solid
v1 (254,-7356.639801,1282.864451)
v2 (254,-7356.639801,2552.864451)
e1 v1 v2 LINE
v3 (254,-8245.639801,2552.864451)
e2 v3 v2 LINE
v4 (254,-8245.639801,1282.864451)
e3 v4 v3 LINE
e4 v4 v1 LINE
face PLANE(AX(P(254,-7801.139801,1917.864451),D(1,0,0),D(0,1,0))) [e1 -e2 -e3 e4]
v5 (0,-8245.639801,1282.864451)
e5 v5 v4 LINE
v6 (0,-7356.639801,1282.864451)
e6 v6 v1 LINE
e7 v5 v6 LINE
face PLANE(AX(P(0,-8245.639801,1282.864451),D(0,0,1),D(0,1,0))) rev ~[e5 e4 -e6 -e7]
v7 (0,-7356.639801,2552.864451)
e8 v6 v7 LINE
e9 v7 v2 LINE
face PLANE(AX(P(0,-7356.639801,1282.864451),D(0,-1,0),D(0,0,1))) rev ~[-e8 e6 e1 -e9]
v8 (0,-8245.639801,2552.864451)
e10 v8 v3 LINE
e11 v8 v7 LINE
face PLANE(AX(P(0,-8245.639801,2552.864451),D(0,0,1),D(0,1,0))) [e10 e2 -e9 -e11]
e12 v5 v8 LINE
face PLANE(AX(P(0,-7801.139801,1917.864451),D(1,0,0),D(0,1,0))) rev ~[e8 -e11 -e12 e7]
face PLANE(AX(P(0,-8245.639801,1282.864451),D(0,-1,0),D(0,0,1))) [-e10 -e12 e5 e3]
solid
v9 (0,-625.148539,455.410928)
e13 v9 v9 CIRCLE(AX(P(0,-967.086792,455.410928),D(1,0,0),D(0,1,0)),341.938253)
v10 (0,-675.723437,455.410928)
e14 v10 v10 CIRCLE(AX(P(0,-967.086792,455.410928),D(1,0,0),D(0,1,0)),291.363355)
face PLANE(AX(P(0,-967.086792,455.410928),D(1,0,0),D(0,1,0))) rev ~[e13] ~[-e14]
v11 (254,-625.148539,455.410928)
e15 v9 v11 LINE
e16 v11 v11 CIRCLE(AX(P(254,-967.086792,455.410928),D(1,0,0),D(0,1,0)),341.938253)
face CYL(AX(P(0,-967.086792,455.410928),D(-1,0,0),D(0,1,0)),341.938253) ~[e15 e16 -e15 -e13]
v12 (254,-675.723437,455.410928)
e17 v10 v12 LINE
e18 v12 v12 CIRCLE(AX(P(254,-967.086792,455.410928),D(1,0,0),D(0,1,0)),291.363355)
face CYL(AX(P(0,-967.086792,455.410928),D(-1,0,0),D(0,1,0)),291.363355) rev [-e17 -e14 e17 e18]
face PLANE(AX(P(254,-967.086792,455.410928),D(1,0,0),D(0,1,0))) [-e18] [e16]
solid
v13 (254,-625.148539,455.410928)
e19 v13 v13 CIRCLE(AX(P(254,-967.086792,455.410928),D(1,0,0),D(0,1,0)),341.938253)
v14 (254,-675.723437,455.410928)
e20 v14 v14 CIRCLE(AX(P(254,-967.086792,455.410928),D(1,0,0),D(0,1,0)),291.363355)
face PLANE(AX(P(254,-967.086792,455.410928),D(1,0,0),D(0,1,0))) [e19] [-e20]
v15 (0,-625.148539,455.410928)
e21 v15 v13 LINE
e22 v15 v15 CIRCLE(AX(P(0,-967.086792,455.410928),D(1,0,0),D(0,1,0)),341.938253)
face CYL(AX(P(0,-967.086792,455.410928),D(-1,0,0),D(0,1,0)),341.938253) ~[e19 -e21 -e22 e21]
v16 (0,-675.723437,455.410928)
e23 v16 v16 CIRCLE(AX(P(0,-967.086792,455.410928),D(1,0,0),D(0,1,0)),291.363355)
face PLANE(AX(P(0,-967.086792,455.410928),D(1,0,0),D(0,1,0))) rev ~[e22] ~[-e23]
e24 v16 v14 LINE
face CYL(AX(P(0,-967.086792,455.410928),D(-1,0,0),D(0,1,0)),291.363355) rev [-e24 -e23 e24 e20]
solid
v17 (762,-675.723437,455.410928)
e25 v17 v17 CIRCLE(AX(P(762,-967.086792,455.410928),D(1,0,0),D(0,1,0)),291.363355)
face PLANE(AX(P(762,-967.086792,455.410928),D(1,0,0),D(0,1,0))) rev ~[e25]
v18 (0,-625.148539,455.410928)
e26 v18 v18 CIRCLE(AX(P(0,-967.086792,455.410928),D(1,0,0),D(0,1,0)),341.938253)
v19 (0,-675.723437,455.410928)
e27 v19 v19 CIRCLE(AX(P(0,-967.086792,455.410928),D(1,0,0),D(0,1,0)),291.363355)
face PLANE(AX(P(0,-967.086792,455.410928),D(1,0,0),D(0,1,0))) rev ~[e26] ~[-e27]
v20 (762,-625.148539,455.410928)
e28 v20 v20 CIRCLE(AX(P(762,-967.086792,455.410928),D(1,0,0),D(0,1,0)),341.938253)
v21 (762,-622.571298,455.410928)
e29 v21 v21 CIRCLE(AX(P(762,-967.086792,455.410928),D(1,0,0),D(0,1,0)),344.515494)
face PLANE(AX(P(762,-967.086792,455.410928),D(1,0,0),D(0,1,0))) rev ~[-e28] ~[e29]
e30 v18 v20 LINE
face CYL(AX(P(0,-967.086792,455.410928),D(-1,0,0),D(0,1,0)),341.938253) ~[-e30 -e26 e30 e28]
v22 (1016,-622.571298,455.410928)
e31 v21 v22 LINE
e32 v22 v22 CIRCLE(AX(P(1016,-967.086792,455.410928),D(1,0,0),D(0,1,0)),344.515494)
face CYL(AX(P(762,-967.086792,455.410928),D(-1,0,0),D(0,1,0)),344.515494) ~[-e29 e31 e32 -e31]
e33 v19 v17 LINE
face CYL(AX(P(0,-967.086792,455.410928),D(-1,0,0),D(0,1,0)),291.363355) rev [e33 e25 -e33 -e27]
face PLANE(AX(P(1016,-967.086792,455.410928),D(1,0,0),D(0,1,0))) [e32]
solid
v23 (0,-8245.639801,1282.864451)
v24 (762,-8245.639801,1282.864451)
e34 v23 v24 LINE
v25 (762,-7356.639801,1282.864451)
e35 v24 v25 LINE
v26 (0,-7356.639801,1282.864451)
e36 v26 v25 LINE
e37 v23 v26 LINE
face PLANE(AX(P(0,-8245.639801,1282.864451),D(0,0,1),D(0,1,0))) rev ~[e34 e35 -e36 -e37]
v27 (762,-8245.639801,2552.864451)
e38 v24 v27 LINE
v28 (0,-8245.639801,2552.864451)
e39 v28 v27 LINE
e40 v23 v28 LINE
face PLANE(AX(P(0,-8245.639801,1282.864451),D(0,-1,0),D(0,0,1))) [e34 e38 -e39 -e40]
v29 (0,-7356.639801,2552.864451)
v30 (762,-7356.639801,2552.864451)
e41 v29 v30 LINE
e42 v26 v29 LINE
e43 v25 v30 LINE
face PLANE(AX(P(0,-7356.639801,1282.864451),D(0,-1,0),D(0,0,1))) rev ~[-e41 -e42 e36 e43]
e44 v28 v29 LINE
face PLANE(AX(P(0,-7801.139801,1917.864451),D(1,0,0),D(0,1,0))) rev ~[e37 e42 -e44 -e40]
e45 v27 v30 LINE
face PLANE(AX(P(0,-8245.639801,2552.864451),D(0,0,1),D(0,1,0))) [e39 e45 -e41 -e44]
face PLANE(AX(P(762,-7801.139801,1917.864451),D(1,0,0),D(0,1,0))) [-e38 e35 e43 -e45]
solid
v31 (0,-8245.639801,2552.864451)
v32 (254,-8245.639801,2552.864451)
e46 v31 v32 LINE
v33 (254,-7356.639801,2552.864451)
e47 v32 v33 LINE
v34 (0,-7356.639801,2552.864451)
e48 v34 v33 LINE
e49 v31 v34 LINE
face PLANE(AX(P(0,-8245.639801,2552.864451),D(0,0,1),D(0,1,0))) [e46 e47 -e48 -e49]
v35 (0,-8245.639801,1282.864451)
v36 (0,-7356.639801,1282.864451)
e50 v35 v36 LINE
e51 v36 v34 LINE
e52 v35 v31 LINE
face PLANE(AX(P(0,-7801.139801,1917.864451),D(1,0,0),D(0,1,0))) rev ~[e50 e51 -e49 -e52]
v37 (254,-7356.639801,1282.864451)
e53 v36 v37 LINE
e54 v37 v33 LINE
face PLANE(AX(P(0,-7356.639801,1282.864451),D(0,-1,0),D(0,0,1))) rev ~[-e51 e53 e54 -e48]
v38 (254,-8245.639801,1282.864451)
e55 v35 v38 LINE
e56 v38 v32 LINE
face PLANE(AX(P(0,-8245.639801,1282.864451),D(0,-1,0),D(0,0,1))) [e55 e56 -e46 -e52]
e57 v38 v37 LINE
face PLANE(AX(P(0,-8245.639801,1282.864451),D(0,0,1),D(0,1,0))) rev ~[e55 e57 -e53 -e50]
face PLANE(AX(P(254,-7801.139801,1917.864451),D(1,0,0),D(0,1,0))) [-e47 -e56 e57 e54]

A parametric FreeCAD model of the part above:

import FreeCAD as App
import Part
import Sketcher
Q = App.Units.Quantity

doc = App.newDocument("Part")
params = doc.addObject("Spreadsheet::Sheet", "Params")
for row, (alias, value) in enumerate([
    ("sketch1_width", "35 in"),
    ("sketch1_height", "50 in"),
    ("pad1_length", "10 in"),
    ("sketch2_width", "35 in"),
    ("sketch2_height", "50 in"),
    ("pad2_length", "10 in"),
    ("sketch3_width", "35 in"),
    ("sketch3_height", "50 in"),
    ("pad3_length", "30 in"),
    ("pad4_length", "10 in"),
], start=1):
    params.set(f"A{row}", alias)
    params.set(f"B{row}", "=" + value)
    params.setAlias(f"B{row}", alias)

body = doc.addObject("PartDesign::Body", "Body")
body.AllowCompound = True

# Sketch on YZ plane
sketch1 = doc.addObject("Sketcher::SketchObject", "Sketch")
body.addObject(sketch1)
sketch1.AttachmentSupport = (doc.YZ_Plane, [""])
sketch1.MapMode = "FlatFace"
sketch1.addGeometry([
    Part.LineSegment(App.Vector(-8246, 2553, 0), App.Vector(-8246, 1283, 0)),  # 0
    Part.LineSegment(App.Vector(-8246, 1283, 0), App.Vector(-7357, 1283, 0)),  # 1
    Part.LineSegment(App.Vector(-7357, 1283, 0), App.Vector(-7357, 2553, 0)),  # 2
    Part.LineSegment(App.Vector(-7357, 2553, 0), App.Vector(-8246, 2553, 0)),  # 3
    Part.Circle(App.Vector(-967, 455, 0), App.Vector(0, 0, 1), 342),  # 4
    Part.Circle(App.Vector(-967, 455, 0), App.Vector(0, 0, 1), 291),  # 5
], False)
sketch1.addConstraint([
    Sketcher.Constraint("Coincident", 0, 2, 1, 1),
    Sketcher.Constraint("Coincident", 1, 2, 2, 1),
    Sketcher.Constraint("Coincident", 2, 2, 3, 1),
    Sketcher.Constraint("Coincident", 3, 2, 0, 1),
    Sketcher.Constraint("Vertical", 0),
    Sketcher.Constraint("Horizontal", 1),
    Sketcher.Constraint("Vertical", 2),
    Sketcher.Constraint("Horizontal", 3),
    Sketcher.Constraint("Coincident", 5, 3, 4, 3),
    Sketcher.Constraint("DistanceX", 1, 1, 1, 2, Q("35 in")),
    Sketcher.Constraint("DistanceY", 0, 2, 0, 1, Q("50 in")),
    Sketcher.Constraint("Diameter", 5, Q("582.72671 mm")),
    Sketcher.Constraint("Diameter", 4, Q("683.876506 mm")),
    Sketcher.Constraint("DistanceX", 0, 2, -1, 1, Q("8245.639801 mm")),
    Sketcher.Constraint("DistanceX", 4, 3, -1, 1, Q("967.086792 mm")),
    Sketcher.Constraint("DistanceY", -1, 1, 4, 3, Q("455.410928 mm")),
    Sketcher.Constraint("DistanceY", -1, 1, 0, 2, Q("1282.864451 mm")),
])
sketch1.setExpression("Constraints[9]", "Params.sketch1_width")
sketch1.setExpression("Constraints[10]", "Params.sketch1_height")
pad1 = doc.addObject("PartDesign::Pad", "Pad")
body.addObject(pad1)
pad1.Profile = sketch1
pad1.setExpression("Length", "Params.pad1_length")
body2 = doc.addObject("PartDesign::Body", "Body001")
body2.AllowCompound = True

# Sketch on YZ plane
sketch2 = doc.addObject("Sketcher::SketchObject", "Sketch001")
body2.addObject(sketch2)
sketch2.AttachmentSupport = (doc.getObject("YZ_Plane001"), [""])
sketch2.MapMode = "FlatFace"
sketch2.addGeometry([
    Part.LineSegment(App.Vector(-8246, 2553, 0), App.Vector(-8246, 1283, 0)),  # 0
    Part.LineSegment(App.Vector(-8246, 1283, 0), App.Vector(-7357, 1283, 0)),  # 1
    Part.LineSegment(App.Vector(-7357, 1283, 0), App.Vector(-7357, 2553, 0)),  # 2
    Part.LineSegment(App.Vector(-7357, 2553, 0), App.Vector(-8246, 2553, 0)),  # 3
    Part.Circle(App.Vector(-967, 455, 0), App.Vector(0, 0, 1), 342),  # 4
    Part.Circle(App.Vector(-967, 455, 0), App.Vector(0, 0, 1), 291),  # 5
], False)
sketch2.addConstraint([
    Sketcher.Constraint("Coincident", 0, 2, 1, 1),
    Sketcher.Constraint("Coincident", 1, 2, 2, 1),
    Sketcher.Constraint("Coincident", 2, 2, 3, 1),
    Sketcher.Constraint("Coincident", 3, 2, 0, 1),
    Sketcher.Constraint("Vertical", 0),
    Sketcher.Constraint("Horizontal", 1),
    Sketcher.Constraint("Vertical", 2),
    Sketcher.Constraint("Horizontal", 3),
    Sketcher.Constraint("Coincident", 5, 3, 4, 3),
    Sketcher.Constraint("DistanceX", 1, 1, 1, 2, Q("35 in")),
    Sketcher.Constraint("DistanceY", 0, 2, 0, 1, Q("50 in")),
    Sketcher.Constraint("Diameter", 5, Q("582.72671 mm")),
    Sketcher.Constraint("Diameter", 4, Q("683.876506 mm")),
    Sketcher.Constraint("DistanceX", 0, 2, -1, 1, Q("8245.639801 mm")),
    Sketcher.Constraint("DistanceX", 4, 3, -1, 1, Q("967.086792 mm")),
    Sketcher.Constraint("DistanceY", -1, 1, 4, 3, Q("455.410928 mm")),
    Sketcher.Constraint("DistanceY", -1, 1, 0, 2, Q("1282.864451 mm")),
])
sketch2.setExpression("Constraints[9]", "Params.sketch2_width")
sketch2.setExpression("Constraints[10]", "Params.sketch2_height")
pad2 = doc.addObject("PartDesign::Pad", "Pad001")
body2.addObject(pad2)
pad2.Profile = sketch2
pad2.setExpression("Length", "Params.pad2_length")
body3 = doc.addObject("PartDesign::Body", "Body002")
body3.AllowCompound = True

# Sketch on YZ plane
sketch3 = doc.addObject("Sketcher::SketchObject", "Sketch002")
body3.addObject(sketch3)
sketch3.AttachmentSupport = (doc.getObject("YZ_Plane002"), [""])
sketch3.MapMode = "FlatFace"
sketch3.addGeometry([
    Part.LineSegment(App.Vector(-8246, 2553, 0), App.Vector(-8246, 1283, 0)),  # 0
    Part.LineSegment(App.Vector(-8246, 1283, 0), App.Vector(-7357, 1283, 0)),  # 1
    Part.LineSegment(App.Vector(-7357, 1283, 0), App.Vector(-7357, 2553, 0)),  # 2
    Part.LineSegment(App.Vector(-7357, 2553, 0), App.Vector(-8246, 2553, 0)),  # 3
    Part.Circle(App.Vector(-967, 455, 0), App.Vector(0, 0, 1), 342),  # 4
    Part.Circle(App.Vector(-967, 455, 0), App.Vector(0, 0, 1), 291),  # 5
], False)
sketch3.addConstraint([
    Sketcher.Constraint("Coincident", 0, 2, 1, 1),
    Sketcher.Constraint("Coincident", 1, 2, 2, 1),
    Sketcher.Constraint("Coincident", 2, 2, 3, 1),
    Sketcher.Constraint("Coincident", 3, 2, 0, 1),
    Sketcher.Constraint("Vertical", 0),
    Sketcher.Constraint("Horizontal", 1),
    Sketcher.Constraint("Vertical", 2),
    Sketcher.Constraint("Horizontal", 3),
    Sketcher.Constraint("Coincident", 5, 3, 4, 3),
    Sketcher.Constraint("DistanceX", 1, 1, 1, 2, Q("35 in")),
    Sketcher.Constraint("DistanceY", 0, 2, 0, 1, Q("50 in")),
    Sketcher.Constraint("Diameter", 5, Q("582.72671 mm")),
    Sketcher.Constraint("Diameter", 4, Q("683.876506 mm")),
    Sketcher.Constraint("DistanceX", 0, 2, -1, 1, Q("8245.639801 mm")),
    Sketcher.Constraint("DistanceX", 4, 3, -1, 1, Q("967.086792 mm")),
    Sketcher.Constraint("DistanceY", -1, 1, 4, 3, Q("455.410928 mm")),
    Sketcher.Constraint("DistanceY", -1, 1, 0, 2, Q("1282.864451 mm")),
])
sketch3.setExpression("Constraints[9]", "Params.sketch3_width")
sketch3.setExpression("Constraints[10]", "Params.sketch3_height")
pad3 = doc.addObject("PartDesign::Pad", "Pad002")
body3.addObject(pad3)
pad3.Profile = sketch3
pad3.setExpression("Length", "Params.pad3_length")

# Sketch on YZ plane
sketch4 = doc.addObject("Sketcher::SketchObject", "Sketch003")
body3.addObject(sketch4)
sketch4.AttachmentSupport = (doc.getObject("YZ_Plane002"), [""])
sketch4.MapMode = "FlatFace"
sketch4.AttachmentOffset = App.Placement(App.Vector(0, 0, 30 * 25.4), App.Rotation())
sketch4.addGeometry(Part.Circle(App.Vector(-967, 455, 0), App.Vector(0, 0, 1), 345), False)
sketch4.addConstraint([
    Sketcher.Constraint("Diameter", 0, Q("689.030988 mm")),
    Sketcher.Constraint("DistanceX", 0, 3, -1, 1, Q("967.086792 mm")),
    Sketcher.Constraint("DistanceY", -1, 1, 0, 3, Q("455.410928 mm")),
])
pad4 = doc.addObject("PartDesign::Pad", "Pad003")
body3.addObject(pad4)
pad4.Profile = sketch4
pad4.setExpression("Length", "Params.pad4_length")

doc.recompute()
